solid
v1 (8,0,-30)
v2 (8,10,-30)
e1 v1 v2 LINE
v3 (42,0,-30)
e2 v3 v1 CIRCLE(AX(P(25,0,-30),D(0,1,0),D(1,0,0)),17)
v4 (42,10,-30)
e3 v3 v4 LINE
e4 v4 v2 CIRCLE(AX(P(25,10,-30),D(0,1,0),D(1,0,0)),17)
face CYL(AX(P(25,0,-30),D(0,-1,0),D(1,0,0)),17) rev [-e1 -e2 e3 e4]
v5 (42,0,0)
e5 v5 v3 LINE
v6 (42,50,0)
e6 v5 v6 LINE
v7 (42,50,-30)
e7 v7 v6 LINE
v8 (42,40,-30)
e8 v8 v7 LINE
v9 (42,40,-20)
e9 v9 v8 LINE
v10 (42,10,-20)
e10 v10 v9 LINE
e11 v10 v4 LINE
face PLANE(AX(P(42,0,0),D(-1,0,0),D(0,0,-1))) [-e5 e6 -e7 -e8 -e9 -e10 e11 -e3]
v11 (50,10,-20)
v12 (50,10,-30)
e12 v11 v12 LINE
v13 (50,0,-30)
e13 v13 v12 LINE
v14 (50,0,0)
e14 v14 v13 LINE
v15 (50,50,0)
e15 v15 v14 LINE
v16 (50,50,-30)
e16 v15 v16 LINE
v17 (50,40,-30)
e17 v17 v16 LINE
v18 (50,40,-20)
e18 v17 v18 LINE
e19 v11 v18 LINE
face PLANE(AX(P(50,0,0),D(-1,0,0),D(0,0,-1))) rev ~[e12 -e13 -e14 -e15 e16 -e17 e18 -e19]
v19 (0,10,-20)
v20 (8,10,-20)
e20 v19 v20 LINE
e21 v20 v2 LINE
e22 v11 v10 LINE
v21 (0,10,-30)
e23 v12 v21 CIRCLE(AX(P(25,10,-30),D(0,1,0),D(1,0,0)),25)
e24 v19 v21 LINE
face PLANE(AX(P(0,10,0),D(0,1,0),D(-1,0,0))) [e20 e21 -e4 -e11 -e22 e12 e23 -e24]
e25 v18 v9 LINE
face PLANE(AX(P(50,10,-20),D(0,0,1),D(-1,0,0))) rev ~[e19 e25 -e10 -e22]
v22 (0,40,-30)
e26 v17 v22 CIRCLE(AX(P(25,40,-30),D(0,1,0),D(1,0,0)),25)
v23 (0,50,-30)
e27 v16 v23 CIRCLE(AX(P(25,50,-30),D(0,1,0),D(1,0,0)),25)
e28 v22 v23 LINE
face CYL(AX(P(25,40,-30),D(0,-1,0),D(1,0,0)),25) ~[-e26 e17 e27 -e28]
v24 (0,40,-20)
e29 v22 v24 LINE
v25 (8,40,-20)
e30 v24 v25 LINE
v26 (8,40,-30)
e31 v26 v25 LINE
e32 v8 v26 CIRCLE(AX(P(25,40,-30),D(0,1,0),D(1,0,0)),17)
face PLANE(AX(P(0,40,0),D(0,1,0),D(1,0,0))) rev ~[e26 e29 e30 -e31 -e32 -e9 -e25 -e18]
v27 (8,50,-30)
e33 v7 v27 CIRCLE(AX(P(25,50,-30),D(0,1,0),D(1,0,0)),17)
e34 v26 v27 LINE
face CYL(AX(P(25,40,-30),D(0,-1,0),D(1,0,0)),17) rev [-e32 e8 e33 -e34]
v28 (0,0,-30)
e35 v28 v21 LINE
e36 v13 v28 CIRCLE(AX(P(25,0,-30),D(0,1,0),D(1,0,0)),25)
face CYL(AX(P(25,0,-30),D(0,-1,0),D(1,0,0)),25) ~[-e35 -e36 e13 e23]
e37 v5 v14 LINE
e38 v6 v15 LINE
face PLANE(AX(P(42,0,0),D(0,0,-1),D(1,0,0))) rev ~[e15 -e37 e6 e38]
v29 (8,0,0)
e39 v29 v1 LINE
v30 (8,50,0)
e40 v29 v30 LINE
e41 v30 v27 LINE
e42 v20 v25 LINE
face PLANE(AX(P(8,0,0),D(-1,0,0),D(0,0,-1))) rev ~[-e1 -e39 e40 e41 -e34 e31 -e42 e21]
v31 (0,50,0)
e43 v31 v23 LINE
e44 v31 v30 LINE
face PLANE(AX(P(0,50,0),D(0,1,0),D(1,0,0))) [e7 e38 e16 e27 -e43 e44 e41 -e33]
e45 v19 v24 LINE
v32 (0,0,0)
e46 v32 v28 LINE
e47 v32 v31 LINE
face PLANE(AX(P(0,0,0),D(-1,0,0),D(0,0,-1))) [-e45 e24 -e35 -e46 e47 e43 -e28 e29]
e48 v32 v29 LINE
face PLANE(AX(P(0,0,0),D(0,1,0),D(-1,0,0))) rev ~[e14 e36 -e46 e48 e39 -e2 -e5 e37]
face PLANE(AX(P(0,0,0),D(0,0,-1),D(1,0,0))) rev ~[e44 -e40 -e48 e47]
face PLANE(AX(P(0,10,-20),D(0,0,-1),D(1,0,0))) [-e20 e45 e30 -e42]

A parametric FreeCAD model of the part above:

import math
import FreeCAD as App
import Part
import Sketcher
from FreeCAD import Vector
Q = App.Units.Quantity


def add_polygon(sketch, points):
    """Adds a closed chain of lines whose ends are joined by coincident constraints."""
    first, n = sketch.GeometryCount, len(points)
    for a, b in zip(points, points[1:] + points[:1]):
        sketch.addGeometry(Part.LineSegment(App.Vector(*a, 0), App.Vector(*b, 0)), False)
    for i in range(n):
        sketch.addConstraint(Sketcher.Constraint("Coincident", first + i, 2, first + (i + 1) % n, 1))

doc = App.newDocument("Part")
body = doc.addObject("PartDesign::Body", "Body")

sketch1 = body.newObject("Sketcher::SketchObject", "Sketch")
sketch1.AttachmentSupport = (doc.getObject("XZ_Plane"), [""])
sketch1.MapMode = "FlatFace"
sketch1.addGeometry([
    Part.LineSegment(Vector(0, -30, 0), Vector(0, 0, 0)),
    Part.LineSegment(Vector(0, 0, 0), Vector(8, 0, 0)),
    Part.LineSegment(Vector(8, 0, 0), Vector(8, -30, 0)),
    Part.ArcOfCircle(Part.Circle(Vector(25, -30, 0), Vector(0, 0, 1), 17), math.radians(180), math.radians(360)),
    Part.LineSegment(Vector(42, -30, 0), Vector(42, 0, 0)),
    Part.LineSegment(Vector(42, 0, 0), Vector(50, 0, 0)),
    Part.LineSegment(Vector(50, 0, 0), Vector(50, -30, 0)),
    Part.ArcOfCircle(Part.Circle(Vector(25, -30, 0), Vector(0, 0, 1), 25), math.radians(180), math.radians(360)),
], False)
sketch1.addConstraint([
    Sketcher.Constraint("Coincident", 0, 2, 1, 1),
    Sketcher.Constraint("Coincident", 1, 2, 2, 1),
    Sketcher.Constraint("Tangent", 2, 2, 3, 1),
    Sketcher.Constraint("Tangent", 3, 2, 4, 1),
    Sketcher.Constraint("Coincident", 4, 2, 5, 1),
    Sketcher.Constraint("Coincident", 5, 2, 6, 1),
    Sketcher.Constraint("Tangent", 6, 2, 7, 2),
    Sketcher.Constraint("Tangent", 7, 1, 0, 1),
    Sketcher.Constraint("Vertical", 0),
    Sketcher.Constraint("Horizontal", 1),
    Sketcher.Constraint("Vertical", 2),
    Sketcher.Constraint("Vertical", 4),
    Sketcher.Constraint("Horizontal", 5),
    Sketcher.Constraint("Vertical", 6),
    Sketcher.Constraint("Coincident", 0, 2, -1, 1),
    Sketcher.Constraint("Coincident", 7, 3, 3, 3),
    Sketcher.Constraint("PointOnObject", 4, 2, -1),
    Sketcher.Constraint("Radius", 3, Q("17 mm")),
    Sketcher.Constraint("Radius", 7, Q("25 mm")),
    Sketcher.Constraint("DistanceY", 0, 1, 0, 2, Q("30 mm")),
])
pad1 = body.newObject("PartDesign::Pad", "Pad")
pad1.Profile = sketch1
pad1.Length = 10
pad1.Reversed = True

sketch2 = body.newObject("Sketcher::SketchObject", "Sketch001")
sketch2.AttachmentSupport = (doc.getObject("XZ_Plane"), [""])
sketch2.MapMode = "FlatFace"
sketch2.AttachmentOffset = App.Placement(Vector(0, 0, -10), App.Rotation())
add_polygon(sketch2, [(8, -20), (0, -20), (0, 0), (8, 0)])
add_polygon(sketch2, [(50, 0), (50, -20), (42, -20), (42, 0)])
sketch2.addConstraint([
    Sketcher.Constraint("Horizontal", 0),
    Sketcher.Constraint("Vertical", 1),
    Sketcher.Constraint("Horizontal", 2),
    Sketcher.Constraint("Vertical", 3),
    Sketcher.Constraint("Vertical", 4),
    Sketcher.Constraint("Horizontal", 5),
    Sketcher.Constraint("Vertical", 6),
    Sketcher.Constraint("Horizontal", 7),
    Sketcher.Constraint("Coincident", 1, 2, -1, 1),
    Sketcher.Constraint("PointOnObject", 6, 2, -1),
    Sketcher.Constraint("Horizontal", 3, 2, 4, 2),
    Sketcher.Constraint("Equal", 2, 5),
    Sketcher.Constraint("DistanceY", 1, 1, 1, 2, Q("20 mm")),
    Sketcher.Constraint("DistanceX", 0, 2, 0, 1, Q("8 mm")),
    Sketcher.Constraint("DistanceX", -1, 1, 4, 2, Q("50 mm")),
])
pad2 = body.newObject("PartDesign::Pad", "Pad001")
pad2.Profile = sketch2
pad2.Length = 30
pad2.Reversed = True

sketch3 = body.newObject("Sketcher::SketchObject", "Sketch002")
sketch3.AttachmentSupport = (doc.getObject("XZ_Plane"), [""])
sketch3.MapMode = "FlatFace"
sketch3.AttachmentOffset = App.Placement(Vector(0, 0, -40), App.Rotation())
sketch3.addGeometry([
    Part.LineSegment(Vector(0, -30, 0), Vector(0, 0, 0)),
    Part.LineSegment(Vector(0, 0, 0), Vector(8, 0, 0)),
    Part.LineSegment(Vector(8, 0, 0), Vector(8, -30, 0)),
    Part.ArcOfCircle(Part.Circle(Vector(25, -30, 0), Vector(0, 0, 1), 17), math.radians(180), math.radians(360)),
    Part.LineSegment(Vector(42, -30, 0), Vector(42, 0, 0)),
    Part.LineSegment(Vector(42, 0, 0), Vector(50, 0, 0)),
    Part.LineSegment(Vector(50, 0, 0), Vector(50, -30, 0)),
    Part.ArcOfCircle(Part.Circle(Vector(25, -30, 0), Vector(0, 0, 1), 25), math.radians(180), math.radians(360)),
], False)
sketch3.addConstraint([
    Sketcher.Constraint("Coincident", 0, 2, 1, 1),
    Sketcher.Constraint("Coincident", 1, 2, 2, 1),
    Sketcher.Constraint("Tangent", 2, 2, 3, 1),
    Sketcher.Constraint("Tangent", 3, 2, 4, 1),
    Sketcher.Constraint("Coincident", 4, 2, 5, 1),
    Sketcher.Constraint("Coincident", 5, 2, 6, 1),
    Sketcher.Constraint("Tangent", 6, 2, 7, 2),
    Sketcher.Constraint("Tangent", 7, 1, 0, 1),
    Sketcher.Constraint("Vertical", 0),
    Sketcher.Constraint("Horizontal", 1),
    Sketcher.Constraint("Vertical", 2),
    Sketcher.Constraint("Vertical", 4),
    Sketcher.Constraint("Horizontal", 5),
    Sketcher.Constraint("Vertical", 6),
    Sketcher.Constraint("Coincident", 0, 2, -1, 1),
    Sketcher.Constraint("Coincident", 7, 3, 3, 3),
    Sketcher.Constraint("PointOnObject", 4, 2, -1),
    Sketcher.Constraint("Radius", 3, Q("17 mm")),
    Sketcher.Constraint("Radius", 7, Q("25 mm")),
    Sketcher.Constraint("DistanceY", 0, 1, 0, 2, Q("30 mm")),
])
pad3 = body.newObject("PartDesign::Pad", "Pad002")
pad3.Profile = sketch3
pad3.Length = 10
pad3.Reversed = True

doc.recompute()
